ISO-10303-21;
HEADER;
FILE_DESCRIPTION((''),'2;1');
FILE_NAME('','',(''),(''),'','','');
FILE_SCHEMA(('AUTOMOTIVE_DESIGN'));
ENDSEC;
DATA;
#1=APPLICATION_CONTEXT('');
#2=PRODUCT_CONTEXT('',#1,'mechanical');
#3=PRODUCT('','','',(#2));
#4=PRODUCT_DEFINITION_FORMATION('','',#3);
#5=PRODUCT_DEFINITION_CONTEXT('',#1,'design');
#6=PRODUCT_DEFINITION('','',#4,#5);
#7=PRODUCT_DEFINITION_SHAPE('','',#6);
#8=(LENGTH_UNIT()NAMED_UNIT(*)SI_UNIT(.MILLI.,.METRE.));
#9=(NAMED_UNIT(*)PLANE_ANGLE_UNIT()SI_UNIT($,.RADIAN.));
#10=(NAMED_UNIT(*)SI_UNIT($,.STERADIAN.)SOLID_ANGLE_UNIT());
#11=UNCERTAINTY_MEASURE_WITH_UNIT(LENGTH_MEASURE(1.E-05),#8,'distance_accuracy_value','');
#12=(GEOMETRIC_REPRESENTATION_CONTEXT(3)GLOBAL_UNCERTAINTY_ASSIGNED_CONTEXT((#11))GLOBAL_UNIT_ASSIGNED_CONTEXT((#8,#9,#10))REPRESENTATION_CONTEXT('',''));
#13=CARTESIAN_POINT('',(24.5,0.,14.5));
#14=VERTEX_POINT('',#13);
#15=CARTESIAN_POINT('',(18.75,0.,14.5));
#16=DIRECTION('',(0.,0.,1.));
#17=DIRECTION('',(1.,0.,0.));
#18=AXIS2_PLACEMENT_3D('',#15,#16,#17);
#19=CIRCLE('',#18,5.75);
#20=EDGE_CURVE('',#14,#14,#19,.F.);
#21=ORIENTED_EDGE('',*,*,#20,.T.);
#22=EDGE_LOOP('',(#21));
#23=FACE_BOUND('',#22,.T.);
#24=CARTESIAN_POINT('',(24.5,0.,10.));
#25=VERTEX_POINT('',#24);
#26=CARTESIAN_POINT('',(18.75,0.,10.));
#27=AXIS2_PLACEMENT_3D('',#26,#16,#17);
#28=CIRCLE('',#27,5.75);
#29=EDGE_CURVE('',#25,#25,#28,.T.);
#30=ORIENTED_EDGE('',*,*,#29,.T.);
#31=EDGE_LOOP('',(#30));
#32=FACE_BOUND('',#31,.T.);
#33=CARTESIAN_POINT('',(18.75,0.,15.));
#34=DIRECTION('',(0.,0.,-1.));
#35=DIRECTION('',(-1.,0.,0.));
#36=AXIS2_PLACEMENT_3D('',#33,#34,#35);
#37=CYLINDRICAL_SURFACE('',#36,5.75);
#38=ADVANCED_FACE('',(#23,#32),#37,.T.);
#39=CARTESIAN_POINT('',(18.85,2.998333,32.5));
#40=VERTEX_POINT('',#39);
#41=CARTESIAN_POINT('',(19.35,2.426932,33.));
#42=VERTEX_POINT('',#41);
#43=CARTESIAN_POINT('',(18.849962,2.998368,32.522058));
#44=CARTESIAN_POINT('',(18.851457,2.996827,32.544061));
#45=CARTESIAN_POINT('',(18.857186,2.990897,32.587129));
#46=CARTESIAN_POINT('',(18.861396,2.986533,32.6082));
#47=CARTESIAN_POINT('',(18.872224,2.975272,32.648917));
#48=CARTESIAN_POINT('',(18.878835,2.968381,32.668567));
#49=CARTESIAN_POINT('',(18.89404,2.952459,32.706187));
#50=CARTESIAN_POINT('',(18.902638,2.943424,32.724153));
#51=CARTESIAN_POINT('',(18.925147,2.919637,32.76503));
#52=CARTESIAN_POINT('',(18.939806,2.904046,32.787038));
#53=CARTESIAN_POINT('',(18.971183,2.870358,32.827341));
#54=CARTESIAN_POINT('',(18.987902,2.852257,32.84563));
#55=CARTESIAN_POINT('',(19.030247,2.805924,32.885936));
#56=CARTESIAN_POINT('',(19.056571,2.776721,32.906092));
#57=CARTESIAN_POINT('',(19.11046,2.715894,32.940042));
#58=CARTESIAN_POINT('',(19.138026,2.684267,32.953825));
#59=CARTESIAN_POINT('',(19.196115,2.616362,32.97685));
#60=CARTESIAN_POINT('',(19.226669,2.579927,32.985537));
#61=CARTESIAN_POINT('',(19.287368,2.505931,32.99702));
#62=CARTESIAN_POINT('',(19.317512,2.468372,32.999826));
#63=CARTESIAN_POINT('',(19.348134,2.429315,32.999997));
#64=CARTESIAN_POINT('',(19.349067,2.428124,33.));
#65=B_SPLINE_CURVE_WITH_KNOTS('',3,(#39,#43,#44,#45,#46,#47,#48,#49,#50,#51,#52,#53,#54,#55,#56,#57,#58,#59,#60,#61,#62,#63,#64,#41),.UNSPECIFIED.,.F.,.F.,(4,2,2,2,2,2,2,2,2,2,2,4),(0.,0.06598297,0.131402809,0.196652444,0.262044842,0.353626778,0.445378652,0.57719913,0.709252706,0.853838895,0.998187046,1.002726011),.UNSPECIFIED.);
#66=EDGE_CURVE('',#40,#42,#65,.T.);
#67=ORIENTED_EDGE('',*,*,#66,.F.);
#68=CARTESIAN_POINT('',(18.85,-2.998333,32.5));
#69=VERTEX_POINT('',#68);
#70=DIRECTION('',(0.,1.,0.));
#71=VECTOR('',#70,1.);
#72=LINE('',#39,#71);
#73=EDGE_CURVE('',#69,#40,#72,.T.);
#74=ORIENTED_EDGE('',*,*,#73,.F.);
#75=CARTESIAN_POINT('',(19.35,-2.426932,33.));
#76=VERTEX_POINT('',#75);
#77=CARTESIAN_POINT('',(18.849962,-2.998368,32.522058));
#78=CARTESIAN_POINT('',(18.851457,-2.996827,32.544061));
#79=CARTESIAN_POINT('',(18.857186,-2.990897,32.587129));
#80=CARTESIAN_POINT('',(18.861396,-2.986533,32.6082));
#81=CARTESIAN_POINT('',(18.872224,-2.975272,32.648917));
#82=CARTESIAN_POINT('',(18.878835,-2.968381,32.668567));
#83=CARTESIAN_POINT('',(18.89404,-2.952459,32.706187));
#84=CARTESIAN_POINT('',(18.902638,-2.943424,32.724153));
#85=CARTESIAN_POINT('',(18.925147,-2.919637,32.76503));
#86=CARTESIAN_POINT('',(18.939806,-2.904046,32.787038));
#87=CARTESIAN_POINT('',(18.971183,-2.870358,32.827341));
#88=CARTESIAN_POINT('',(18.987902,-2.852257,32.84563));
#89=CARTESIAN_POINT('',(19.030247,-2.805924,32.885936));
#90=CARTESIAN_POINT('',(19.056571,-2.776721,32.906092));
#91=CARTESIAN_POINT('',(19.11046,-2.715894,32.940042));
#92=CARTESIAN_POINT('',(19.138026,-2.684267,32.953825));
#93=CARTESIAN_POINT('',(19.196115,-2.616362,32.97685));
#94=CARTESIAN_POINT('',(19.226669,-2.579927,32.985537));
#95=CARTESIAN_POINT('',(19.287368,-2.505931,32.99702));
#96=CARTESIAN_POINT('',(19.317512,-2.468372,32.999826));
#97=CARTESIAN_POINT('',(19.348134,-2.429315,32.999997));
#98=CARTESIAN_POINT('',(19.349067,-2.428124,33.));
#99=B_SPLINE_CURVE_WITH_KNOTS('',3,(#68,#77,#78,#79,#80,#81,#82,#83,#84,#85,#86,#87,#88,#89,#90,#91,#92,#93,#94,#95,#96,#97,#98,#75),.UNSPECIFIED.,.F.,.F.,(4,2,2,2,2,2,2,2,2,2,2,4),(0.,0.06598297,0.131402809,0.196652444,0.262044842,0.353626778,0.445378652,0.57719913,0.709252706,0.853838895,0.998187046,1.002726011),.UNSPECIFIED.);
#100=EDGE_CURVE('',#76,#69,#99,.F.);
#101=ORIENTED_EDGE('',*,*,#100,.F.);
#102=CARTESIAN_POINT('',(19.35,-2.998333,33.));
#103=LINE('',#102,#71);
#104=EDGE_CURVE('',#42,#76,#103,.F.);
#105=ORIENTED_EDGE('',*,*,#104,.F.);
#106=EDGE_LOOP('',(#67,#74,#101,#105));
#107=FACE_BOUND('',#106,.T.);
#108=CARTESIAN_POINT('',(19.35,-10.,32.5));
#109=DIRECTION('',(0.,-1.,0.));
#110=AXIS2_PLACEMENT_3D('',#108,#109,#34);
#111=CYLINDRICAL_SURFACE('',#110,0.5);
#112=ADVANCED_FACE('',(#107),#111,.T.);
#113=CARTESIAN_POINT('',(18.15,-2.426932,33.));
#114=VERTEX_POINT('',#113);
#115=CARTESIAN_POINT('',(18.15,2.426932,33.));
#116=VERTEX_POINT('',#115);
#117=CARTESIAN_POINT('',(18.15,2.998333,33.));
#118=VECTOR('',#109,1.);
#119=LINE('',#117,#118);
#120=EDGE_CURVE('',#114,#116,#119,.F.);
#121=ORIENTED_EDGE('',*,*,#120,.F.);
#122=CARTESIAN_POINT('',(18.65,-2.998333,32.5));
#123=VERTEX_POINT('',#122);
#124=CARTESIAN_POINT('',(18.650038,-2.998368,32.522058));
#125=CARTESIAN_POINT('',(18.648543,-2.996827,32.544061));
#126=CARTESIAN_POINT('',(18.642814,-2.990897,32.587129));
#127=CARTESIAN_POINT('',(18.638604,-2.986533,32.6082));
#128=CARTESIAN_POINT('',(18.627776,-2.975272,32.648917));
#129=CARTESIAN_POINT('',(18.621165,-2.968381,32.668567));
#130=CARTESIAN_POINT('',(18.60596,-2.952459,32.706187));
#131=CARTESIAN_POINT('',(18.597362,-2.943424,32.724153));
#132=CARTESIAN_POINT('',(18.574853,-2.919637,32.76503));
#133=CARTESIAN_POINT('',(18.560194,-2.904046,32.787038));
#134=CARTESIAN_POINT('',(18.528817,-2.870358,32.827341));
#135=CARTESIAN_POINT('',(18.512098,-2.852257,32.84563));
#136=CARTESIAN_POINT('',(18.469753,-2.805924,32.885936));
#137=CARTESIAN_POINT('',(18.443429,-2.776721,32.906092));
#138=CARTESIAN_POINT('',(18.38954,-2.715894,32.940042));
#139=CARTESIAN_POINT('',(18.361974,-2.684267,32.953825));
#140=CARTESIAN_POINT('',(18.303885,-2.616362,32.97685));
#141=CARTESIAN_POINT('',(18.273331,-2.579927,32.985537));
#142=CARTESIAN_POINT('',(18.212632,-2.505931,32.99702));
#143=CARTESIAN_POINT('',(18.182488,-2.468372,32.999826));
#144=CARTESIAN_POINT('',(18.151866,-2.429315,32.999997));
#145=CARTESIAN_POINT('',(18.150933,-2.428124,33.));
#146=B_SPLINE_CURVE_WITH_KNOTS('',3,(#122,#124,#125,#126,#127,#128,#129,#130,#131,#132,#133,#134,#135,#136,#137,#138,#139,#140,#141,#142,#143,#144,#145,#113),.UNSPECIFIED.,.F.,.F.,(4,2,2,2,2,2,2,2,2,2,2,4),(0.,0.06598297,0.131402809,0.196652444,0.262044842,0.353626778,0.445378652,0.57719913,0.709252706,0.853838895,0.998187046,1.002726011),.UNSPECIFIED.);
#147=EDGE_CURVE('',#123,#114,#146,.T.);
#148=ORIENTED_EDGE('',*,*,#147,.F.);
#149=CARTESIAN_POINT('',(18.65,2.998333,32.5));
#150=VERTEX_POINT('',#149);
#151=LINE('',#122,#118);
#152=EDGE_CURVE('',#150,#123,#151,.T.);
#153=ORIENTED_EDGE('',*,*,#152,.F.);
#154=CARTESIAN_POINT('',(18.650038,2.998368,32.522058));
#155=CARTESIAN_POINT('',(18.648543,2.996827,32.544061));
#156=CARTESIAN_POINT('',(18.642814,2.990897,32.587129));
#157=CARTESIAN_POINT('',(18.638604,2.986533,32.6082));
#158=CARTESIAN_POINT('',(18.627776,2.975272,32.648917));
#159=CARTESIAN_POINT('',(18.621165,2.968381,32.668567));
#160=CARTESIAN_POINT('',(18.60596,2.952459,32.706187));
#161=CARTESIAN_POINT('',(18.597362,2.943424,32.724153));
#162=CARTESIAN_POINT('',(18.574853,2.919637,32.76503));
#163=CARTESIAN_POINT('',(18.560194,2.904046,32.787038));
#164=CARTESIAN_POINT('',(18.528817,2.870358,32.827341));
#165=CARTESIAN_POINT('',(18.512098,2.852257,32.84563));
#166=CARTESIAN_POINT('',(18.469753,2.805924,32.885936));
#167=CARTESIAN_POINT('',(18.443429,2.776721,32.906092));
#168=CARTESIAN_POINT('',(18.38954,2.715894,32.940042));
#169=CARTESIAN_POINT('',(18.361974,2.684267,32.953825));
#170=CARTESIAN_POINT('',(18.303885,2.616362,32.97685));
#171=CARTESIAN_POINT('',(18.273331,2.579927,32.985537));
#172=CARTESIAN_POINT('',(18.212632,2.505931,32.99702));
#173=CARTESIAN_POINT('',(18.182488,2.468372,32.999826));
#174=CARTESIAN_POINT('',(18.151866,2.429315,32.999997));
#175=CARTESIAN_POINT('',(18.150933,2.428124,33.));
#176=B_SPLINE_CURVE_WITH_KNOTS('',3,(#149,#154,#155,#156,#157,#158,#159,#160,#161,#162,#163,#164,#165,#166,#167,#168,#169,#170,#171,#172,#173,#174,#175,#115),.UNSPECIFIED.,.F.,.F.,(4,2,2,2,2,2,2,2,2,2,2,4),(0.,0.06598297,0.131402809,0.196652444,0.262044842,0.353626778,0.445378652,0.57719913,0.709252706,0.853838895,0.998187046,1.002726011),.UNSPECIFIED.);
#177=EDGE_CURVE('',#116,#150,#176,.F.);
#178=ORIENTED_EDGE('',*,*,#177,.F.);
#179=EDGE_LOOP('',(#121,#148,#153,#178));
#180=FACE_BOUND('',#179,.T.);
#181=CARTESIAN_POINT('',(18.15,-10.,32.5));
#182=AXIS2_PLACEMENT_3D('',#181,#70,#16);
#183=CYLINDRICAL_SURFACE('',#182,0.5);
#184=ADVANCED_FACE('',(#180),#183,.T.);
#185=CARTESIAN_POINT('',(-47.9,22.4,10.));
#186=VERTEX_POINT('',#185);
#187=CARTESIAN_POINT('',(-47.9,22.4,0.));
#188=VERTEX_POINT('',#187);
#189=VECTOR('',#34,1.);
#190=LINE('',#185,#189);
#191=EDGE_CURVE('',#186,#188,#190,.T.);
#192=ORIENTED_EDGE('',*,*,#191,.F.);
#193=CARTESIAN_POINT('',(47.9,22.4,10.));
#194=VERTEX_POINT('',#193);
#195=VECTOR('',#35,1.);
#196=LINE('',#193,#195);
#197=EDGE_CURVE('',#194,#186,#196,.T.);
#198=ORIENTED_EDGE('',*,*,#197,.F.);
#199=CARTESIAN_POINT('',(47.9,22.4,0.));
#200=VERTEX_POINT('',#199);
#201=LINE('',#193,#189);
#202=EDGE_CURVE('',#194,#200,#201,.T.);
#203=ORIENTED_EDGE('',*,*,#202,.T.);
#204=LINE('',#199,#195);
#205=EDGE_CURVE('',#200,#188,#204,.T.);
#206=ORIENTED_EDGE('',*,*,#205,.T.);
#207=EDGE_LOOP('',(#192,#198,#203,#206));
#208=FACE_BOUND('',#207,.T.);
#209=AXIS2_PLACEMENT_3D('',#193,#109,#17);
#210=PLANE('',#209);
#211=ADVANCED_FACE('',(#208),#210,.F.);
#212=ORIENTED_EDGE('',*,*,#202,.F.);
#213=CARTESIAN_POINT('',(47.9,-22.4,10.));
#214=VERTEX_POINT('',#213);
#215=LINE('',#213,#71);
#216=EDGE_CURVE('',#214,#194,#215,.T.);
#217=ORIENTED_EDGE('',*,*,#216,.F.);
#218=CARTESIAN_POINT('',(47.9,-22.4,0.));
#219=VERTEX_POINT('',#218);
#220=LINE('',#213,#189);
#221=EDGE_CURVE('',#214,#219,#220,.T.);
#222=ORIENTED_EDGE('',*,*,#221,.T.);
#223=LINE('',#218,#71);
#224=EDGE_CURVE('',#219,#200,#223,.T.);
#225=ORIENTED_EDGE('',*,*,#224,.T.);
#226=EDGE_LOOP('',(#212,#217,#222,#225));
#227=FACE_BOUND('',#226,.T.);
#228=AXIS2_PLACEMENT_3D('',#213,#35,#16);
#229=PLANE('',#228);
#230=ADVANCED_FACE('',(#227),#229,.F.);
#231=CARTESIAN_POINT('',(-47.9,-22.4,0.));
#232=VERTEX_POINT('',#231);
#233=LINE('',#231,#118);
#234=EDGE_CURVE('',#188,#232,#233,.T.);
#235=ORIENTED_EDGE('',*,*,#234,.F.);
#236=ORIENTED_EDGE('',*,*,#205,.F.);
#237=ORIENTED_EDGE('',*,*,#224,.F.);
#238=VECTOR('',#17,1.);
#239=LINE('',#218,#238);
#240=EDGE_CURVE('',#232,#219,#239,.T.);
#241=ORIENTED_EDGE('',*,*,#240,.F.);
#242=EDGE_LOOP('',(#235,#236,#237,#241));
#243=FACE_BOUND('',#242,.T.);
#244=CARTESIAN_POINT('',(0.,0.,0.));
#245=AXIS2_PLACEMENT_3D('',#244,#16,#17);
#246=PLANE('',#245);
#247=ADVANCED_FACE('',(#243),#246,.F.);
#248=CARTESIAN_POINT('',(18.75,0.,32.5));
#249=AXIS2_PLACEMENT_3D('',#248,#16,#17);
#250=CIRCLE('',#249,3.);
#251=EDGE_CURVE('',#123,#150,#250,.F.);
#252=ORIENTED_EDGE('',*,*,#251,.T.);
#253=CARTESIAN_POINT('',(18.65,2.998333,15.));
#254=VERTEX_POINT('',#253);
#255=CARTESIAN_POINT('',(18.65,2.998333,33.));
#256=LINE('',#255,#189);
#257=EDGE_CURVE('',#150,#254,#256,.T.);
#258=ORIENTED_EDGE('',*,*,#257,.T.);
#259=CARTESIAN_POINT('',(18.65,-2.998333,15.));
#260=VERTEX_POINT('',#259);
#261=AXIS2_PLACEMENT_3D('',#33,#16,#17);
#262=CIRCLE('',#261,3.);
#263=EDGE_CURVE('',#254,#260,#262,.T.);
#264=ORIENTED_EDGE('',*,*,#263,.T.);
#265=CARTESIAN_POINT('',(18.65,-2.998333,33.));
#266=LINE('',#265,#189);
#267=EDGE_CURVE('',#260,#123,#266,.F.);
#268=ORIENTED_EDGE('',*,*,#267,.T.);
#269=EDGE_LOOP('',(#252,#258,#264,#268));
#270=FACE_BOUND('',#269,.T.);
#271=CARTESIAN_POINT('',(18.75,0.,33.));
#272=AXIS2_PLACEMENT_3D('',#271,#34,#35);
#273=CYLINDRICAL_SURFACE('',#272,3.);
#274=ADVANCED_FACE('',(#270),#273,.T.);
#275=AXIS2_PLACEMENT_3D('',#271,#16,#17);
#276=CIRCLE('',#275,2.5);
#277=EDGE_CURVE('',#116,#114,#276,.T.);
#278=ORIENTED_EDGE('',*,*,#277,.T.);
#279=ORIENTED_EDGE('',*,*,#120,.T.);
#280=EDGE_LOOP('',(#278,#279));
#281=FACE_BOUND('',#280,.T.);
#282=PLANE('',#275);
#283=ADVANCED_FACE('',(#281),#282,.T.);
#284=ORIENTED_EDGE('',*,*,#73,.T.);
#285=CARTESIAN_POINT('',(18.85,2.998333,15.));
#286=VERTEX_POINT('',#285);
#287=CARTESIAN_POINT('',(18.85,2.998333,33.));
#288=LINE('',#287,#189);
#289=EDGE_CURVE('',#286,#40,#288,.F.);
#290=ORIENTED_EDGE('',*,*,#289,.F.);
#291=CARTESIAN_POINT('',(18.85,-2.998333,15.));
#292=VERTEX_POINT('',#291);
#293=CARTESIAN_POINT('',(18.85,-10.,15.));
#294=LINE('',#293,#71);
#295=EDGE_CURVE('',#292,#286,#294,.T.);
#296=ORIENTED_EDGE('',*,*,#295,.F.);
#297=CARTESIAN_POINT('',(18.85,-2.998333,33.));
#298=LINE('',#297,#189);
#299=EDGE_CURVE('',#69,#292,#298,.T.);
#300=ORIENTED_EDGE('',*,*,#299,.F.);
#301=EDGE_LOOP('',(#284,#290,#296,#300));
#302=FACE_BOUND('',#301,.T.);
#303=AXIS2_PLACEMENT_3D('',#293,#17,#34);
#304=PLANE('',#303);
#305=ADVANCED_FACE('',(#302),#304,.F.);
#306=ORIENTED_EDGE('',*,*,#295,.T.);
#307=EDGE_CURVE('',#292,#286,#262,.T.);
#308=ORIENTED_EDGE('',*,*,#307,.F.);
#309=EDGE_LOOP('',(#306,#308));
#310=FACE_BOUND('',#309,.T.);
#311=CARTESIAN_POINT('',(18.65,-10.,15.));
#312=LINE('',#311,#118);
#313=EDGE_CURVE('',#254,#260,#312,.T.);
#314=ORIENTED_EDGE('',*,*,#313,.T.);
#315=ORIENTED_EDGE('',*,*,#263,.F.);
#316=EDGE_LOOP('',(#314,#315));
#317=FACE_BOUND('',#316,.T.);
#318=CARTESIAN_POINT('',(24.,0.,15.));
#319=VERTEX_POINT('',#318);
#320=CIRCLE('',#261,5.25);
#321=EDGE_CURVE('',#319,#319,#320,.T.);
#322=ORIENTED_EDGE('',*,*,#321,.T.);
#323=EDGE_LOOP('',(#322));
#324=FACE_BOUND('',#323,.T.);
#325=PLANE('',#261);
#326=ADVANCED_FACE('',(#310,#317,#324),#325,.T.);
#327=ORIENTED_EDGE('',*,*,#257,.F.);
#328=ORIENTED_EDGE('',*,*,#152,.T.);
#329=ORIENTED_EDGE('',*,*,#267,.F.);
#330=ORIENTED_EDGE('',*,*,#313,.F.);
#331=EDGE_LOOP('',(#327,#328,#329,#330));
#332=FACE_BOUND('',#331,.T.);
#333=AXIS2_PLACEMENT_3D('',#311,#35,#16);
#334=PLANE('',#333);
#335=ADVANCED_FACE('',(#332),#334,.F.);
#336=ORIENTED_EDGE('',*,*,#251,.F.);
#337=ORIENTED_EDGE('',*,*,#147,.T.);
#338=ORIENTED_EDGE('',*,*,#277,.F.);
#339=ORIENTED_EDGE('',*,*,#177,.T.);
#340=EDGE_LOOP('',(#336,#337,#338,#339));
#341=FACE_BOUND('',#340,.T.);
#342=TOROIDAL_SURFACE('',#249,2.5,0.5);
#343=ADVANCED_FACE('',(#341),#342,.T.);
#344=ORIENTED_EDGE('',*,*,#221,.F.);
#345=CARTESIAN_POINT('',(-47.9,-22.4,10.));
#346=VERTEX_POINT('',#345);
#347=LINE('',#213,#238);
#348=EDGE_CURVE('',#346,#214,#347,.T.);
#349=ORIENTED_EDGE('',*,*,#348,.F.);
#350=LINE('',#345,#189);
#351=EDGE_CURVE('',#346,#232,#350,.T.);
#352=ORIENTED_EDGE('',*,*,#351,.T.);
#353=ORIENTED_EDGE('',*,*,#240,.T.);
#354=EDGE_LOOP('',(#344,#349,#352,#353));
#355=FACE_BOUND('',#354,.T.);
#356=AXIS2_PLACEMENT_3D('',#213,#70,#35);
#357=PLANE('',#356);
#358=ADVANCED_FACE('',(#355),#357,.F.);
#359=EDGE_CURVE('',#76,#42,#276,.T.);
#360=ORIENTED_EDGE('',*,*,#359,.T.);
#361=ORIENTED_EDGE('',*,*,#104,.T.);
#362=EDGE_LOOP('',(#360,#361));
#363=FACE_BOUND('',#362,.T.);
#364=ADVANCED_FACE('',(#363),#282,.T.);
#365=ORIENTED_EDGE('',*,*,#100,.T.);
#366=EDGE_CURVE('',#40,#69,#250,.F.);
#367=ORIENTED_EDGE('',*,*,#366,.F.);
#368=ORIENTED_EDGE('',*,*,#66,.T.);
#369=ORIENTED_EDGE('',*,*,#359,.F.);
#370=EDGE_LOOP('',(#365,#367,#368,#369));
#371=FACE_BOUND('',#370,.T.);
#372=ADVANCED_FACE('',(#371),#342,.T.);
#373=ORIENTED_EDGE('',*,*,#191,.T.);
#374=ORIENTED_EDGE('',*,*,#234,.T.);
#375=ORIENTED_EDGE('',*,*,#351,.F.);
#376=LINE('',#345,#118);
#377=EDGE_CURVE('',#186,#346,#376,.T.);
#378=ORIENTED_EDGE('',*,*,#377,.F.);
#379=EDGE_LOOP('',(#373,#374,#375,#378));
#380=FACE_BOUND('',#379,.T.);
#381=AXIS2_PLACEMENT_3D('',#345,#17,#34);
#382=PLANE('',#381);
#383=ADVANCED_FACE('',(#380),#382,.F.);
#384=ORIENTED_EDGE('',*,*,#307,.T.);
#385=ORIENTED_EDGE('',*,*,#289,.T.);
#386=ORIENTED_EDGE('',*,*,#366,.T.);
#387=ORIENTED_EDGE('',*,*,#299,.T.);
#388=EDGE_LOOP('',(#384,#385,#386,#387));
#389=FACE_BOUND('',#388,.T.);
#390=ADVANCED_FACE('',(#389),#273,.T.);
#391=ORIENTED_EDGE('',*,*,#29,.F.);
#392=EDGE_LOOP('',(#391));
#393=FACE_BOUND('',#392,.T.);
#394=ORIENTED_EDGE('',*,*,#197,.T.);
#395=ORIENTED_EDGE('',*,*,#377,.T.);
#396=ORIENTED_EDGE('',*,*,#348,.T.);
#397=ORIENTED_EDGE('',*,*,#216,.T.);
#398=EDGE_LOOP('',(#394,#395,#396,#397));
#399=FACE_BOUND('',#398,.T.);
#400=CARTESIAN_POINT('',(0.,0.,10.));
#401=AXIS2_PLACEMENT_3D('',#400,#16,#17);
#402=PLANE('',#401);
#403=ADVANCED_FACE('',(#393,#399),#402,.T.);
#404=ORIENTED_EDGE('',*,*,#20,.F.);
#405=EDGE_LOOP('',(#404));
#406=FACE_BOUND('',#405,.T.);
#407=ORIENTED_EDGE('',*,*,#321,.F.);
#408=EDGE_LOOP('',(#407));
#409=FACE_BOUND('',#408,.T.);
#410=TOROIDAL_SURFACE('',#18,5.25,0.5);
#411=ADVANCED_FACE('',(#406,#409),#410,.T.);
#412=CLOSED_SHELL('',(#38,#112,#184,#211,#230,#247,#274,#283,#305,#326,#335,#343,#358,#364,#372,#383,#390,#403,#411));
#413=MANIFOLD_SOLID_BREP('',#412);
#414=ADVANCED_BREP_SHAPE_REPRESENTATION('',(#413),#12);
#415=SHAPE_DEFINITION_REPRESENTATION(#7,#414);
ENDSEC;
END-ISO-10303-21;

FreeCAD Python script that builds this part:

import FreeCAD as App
import Part
import Sketcher
from FreeCAD import Vector
Q = App.Units.Quantity


def edges_at(feature, points):
    """Names of the edges that pass closest to the given points."""
    edges = feature.Shape.Edges
    near = lambda p: min(range(len(edges)), key=lambda i: edges[i].distToShape(Part.Vertex(*p))[0])
    return sorted({f"Edge{near(p) + 1}" for p in points})


def add_polygon(sketch, points):
    """Adds a closed chain of lines whose ends are joined by coincident constraints."""
    first, n = sketch.GeometryCount, len(points)
    for a, b in zip(points, points[1:] + points[:1]):
        sketch.addGeometry(Part.LineSegment(App.Vector(*a, 0), App.Vector(*b, 0)), False)
    for i in range(n):
        sketch.addConstraint(Sketcher.Constraint("Coincident", first + i, 2, first + (i + 1) % n, 1))

doc = App.newDocument("Part")
body = doc.addObject("PartDesign::Body", "Body")

# Sketch on XY plane
sketch1 = doc.addObject("Sketcher::SketchObject", "Sketch")
body.addObject(sketch1)
sketch1.AttachmentSupport = (doc.XY_Plane, [""])
sketch1.MapMode = "FlatFace"
add_polygon(sketch1, [(-48, 22), (-48, -22), (48, -22), (48, 22)])  # lines 0-3
sketch1.addConstraint([
    Sketcher.Constraint("Vertical", 0),
    Sketcher.Constraint("Horizontal", 1),
    Sketcher.Constraint("Vertical", 2),
    Sketcher.Constraint("Horizontal", 3),
    Sketcher.Constraint("Symmetric", 0, 2, 2, 2, -1, 1),
    Sketcher.Constraint("DistanceX", 1, 1, 1, 2, Q("95.8 mm")),
    Sketcher.Constraint("DistanceY", 0, 2, 0, 1, Q("44.8 mm")),
])
pad1 = doc.addObject("PartDesign::Pad", "Pad")
body.addObject(pad1)
pad1.Profile = sketch1
pad1.Length = 10

# Sketch on XY plane
sketch2 = doc.addObject("Sketcher::SketchObject", "Sketch001")
body.addObject(sketch2)
sketch2.AttachmentSupport = (doc.XY_Plane, [""])
sketch2.MapMode = "FlatFace"
sketch2.AttachmentOffset = App.Placement(Vector(0, 0, 10), App.Rotation())
sketch2.addGeometry(Part.Circle(Vector(18.8, 0, 0), Vector(0, 0, 1), 3), False)
sketch2.addConstraint([
    Sketcher.Constraint("PointOnObject", 0, 3, -1),
    Sketcher.Constraint("Diameter", 0, Q("6 mm")),
    Sketcher.Constraint("DistanceX", -1, 1, 0, 3, Q("18.75 mm")),
])
pad2 = doc.addObject("PartDesign::Pad", "Pad001")
body.addObject(pad2)
pad2.Profile = sketch2
pad2.Length = 23

# Sketch on XY plane
sketch3 = doc.addObject("Sketcher::SketchObject", "Sketch002")
body.addObject(sketch3)
sketch3.AttachmentSupport = (doc.XY_Plane, [""])
sketch3.MapMode = "FlatFace"
sketch3.AttachmentOffset = App.Placement(Vector(0, 0, 10), App.Rotation())
sketch3.addGeometry(Part.Circle(Vector(19, 0, 0), Vector(0, 0, 1), 6), False)
sketch3.addConstraint([
    Sketcher.Constraint("PointOnObject", 0, 3, -1),
    Sketcher.Constraint("Diameter", 0, Q("11.5 mm")),
    Sketcher.Constraint("DistanceX", -1, 1, 0, 3, Q("18.75 mm")),
])
pad3 = doc.addObject("PartDesign::Pad", "Pad002")
body.addObject(pad3)
pad3.Profile = sketch3
pad3.Length = 5

# Sketch on XY plane
sketch4 = doc.addObject("Sketcher::SketchObject", "Sketch003")
body.addObject(sketch4)
sketch4.AttachmentSupport = (doc.XY_Plane, [""])
sketch4.MapMode = "FlatFace"
sketch4.AttachmentOffset = App.Placement(Vector(0, 0, 33), App.Rotation())
add_polygon(sketch4, [(18.65, 10), (18.65, -10), (18.85, -10), (18.85, 10)])  # lines 0-3
sketch4.addConstraint([
    Sketcher.Constraint("Vertical", 0),
    Sketcher.Constraint("Horizontal", 1),
    Sketcher.Constraint("Vertical", 2),
    Sketcher.Constraint("Horizontal", 3),
    Sketcher.Constraint("DistanceY", 0, 2, 0, 1, Q("20 mm")),
    Sketcher.Constraint("DistanceX", 1, 1, 1, 2, Q("0.2 mm")),
    Sketcher.Constraint("DistanceY", 0, 2, -1, 1, Q("10 mm")),
    Sketcher.Constraint("DistanceX", -1, 1, 0, 2, Q("18.65 mm")),
])
pocket1 = doc.addObject("PartDesign::Pocket", "Pocket")
body.addObject(pocket1)
pocket1.Profile = sketch4
pocket1.Length = 18
doc.recompute()

fillet = doc.addObject("PartDesign::Fillet", "Fillet")
body.addObject(fillet)
fillet.Base = (pocket1, edges_at(pocket1, [
    (13, 0, 15),
    (15.75, 0, 33),
    (21.75, 0, 33),
    (18.85, 0, 33),
    (18.65, 0, 33),
]))
fillet.Radius = 0.5

doc.recompute()
